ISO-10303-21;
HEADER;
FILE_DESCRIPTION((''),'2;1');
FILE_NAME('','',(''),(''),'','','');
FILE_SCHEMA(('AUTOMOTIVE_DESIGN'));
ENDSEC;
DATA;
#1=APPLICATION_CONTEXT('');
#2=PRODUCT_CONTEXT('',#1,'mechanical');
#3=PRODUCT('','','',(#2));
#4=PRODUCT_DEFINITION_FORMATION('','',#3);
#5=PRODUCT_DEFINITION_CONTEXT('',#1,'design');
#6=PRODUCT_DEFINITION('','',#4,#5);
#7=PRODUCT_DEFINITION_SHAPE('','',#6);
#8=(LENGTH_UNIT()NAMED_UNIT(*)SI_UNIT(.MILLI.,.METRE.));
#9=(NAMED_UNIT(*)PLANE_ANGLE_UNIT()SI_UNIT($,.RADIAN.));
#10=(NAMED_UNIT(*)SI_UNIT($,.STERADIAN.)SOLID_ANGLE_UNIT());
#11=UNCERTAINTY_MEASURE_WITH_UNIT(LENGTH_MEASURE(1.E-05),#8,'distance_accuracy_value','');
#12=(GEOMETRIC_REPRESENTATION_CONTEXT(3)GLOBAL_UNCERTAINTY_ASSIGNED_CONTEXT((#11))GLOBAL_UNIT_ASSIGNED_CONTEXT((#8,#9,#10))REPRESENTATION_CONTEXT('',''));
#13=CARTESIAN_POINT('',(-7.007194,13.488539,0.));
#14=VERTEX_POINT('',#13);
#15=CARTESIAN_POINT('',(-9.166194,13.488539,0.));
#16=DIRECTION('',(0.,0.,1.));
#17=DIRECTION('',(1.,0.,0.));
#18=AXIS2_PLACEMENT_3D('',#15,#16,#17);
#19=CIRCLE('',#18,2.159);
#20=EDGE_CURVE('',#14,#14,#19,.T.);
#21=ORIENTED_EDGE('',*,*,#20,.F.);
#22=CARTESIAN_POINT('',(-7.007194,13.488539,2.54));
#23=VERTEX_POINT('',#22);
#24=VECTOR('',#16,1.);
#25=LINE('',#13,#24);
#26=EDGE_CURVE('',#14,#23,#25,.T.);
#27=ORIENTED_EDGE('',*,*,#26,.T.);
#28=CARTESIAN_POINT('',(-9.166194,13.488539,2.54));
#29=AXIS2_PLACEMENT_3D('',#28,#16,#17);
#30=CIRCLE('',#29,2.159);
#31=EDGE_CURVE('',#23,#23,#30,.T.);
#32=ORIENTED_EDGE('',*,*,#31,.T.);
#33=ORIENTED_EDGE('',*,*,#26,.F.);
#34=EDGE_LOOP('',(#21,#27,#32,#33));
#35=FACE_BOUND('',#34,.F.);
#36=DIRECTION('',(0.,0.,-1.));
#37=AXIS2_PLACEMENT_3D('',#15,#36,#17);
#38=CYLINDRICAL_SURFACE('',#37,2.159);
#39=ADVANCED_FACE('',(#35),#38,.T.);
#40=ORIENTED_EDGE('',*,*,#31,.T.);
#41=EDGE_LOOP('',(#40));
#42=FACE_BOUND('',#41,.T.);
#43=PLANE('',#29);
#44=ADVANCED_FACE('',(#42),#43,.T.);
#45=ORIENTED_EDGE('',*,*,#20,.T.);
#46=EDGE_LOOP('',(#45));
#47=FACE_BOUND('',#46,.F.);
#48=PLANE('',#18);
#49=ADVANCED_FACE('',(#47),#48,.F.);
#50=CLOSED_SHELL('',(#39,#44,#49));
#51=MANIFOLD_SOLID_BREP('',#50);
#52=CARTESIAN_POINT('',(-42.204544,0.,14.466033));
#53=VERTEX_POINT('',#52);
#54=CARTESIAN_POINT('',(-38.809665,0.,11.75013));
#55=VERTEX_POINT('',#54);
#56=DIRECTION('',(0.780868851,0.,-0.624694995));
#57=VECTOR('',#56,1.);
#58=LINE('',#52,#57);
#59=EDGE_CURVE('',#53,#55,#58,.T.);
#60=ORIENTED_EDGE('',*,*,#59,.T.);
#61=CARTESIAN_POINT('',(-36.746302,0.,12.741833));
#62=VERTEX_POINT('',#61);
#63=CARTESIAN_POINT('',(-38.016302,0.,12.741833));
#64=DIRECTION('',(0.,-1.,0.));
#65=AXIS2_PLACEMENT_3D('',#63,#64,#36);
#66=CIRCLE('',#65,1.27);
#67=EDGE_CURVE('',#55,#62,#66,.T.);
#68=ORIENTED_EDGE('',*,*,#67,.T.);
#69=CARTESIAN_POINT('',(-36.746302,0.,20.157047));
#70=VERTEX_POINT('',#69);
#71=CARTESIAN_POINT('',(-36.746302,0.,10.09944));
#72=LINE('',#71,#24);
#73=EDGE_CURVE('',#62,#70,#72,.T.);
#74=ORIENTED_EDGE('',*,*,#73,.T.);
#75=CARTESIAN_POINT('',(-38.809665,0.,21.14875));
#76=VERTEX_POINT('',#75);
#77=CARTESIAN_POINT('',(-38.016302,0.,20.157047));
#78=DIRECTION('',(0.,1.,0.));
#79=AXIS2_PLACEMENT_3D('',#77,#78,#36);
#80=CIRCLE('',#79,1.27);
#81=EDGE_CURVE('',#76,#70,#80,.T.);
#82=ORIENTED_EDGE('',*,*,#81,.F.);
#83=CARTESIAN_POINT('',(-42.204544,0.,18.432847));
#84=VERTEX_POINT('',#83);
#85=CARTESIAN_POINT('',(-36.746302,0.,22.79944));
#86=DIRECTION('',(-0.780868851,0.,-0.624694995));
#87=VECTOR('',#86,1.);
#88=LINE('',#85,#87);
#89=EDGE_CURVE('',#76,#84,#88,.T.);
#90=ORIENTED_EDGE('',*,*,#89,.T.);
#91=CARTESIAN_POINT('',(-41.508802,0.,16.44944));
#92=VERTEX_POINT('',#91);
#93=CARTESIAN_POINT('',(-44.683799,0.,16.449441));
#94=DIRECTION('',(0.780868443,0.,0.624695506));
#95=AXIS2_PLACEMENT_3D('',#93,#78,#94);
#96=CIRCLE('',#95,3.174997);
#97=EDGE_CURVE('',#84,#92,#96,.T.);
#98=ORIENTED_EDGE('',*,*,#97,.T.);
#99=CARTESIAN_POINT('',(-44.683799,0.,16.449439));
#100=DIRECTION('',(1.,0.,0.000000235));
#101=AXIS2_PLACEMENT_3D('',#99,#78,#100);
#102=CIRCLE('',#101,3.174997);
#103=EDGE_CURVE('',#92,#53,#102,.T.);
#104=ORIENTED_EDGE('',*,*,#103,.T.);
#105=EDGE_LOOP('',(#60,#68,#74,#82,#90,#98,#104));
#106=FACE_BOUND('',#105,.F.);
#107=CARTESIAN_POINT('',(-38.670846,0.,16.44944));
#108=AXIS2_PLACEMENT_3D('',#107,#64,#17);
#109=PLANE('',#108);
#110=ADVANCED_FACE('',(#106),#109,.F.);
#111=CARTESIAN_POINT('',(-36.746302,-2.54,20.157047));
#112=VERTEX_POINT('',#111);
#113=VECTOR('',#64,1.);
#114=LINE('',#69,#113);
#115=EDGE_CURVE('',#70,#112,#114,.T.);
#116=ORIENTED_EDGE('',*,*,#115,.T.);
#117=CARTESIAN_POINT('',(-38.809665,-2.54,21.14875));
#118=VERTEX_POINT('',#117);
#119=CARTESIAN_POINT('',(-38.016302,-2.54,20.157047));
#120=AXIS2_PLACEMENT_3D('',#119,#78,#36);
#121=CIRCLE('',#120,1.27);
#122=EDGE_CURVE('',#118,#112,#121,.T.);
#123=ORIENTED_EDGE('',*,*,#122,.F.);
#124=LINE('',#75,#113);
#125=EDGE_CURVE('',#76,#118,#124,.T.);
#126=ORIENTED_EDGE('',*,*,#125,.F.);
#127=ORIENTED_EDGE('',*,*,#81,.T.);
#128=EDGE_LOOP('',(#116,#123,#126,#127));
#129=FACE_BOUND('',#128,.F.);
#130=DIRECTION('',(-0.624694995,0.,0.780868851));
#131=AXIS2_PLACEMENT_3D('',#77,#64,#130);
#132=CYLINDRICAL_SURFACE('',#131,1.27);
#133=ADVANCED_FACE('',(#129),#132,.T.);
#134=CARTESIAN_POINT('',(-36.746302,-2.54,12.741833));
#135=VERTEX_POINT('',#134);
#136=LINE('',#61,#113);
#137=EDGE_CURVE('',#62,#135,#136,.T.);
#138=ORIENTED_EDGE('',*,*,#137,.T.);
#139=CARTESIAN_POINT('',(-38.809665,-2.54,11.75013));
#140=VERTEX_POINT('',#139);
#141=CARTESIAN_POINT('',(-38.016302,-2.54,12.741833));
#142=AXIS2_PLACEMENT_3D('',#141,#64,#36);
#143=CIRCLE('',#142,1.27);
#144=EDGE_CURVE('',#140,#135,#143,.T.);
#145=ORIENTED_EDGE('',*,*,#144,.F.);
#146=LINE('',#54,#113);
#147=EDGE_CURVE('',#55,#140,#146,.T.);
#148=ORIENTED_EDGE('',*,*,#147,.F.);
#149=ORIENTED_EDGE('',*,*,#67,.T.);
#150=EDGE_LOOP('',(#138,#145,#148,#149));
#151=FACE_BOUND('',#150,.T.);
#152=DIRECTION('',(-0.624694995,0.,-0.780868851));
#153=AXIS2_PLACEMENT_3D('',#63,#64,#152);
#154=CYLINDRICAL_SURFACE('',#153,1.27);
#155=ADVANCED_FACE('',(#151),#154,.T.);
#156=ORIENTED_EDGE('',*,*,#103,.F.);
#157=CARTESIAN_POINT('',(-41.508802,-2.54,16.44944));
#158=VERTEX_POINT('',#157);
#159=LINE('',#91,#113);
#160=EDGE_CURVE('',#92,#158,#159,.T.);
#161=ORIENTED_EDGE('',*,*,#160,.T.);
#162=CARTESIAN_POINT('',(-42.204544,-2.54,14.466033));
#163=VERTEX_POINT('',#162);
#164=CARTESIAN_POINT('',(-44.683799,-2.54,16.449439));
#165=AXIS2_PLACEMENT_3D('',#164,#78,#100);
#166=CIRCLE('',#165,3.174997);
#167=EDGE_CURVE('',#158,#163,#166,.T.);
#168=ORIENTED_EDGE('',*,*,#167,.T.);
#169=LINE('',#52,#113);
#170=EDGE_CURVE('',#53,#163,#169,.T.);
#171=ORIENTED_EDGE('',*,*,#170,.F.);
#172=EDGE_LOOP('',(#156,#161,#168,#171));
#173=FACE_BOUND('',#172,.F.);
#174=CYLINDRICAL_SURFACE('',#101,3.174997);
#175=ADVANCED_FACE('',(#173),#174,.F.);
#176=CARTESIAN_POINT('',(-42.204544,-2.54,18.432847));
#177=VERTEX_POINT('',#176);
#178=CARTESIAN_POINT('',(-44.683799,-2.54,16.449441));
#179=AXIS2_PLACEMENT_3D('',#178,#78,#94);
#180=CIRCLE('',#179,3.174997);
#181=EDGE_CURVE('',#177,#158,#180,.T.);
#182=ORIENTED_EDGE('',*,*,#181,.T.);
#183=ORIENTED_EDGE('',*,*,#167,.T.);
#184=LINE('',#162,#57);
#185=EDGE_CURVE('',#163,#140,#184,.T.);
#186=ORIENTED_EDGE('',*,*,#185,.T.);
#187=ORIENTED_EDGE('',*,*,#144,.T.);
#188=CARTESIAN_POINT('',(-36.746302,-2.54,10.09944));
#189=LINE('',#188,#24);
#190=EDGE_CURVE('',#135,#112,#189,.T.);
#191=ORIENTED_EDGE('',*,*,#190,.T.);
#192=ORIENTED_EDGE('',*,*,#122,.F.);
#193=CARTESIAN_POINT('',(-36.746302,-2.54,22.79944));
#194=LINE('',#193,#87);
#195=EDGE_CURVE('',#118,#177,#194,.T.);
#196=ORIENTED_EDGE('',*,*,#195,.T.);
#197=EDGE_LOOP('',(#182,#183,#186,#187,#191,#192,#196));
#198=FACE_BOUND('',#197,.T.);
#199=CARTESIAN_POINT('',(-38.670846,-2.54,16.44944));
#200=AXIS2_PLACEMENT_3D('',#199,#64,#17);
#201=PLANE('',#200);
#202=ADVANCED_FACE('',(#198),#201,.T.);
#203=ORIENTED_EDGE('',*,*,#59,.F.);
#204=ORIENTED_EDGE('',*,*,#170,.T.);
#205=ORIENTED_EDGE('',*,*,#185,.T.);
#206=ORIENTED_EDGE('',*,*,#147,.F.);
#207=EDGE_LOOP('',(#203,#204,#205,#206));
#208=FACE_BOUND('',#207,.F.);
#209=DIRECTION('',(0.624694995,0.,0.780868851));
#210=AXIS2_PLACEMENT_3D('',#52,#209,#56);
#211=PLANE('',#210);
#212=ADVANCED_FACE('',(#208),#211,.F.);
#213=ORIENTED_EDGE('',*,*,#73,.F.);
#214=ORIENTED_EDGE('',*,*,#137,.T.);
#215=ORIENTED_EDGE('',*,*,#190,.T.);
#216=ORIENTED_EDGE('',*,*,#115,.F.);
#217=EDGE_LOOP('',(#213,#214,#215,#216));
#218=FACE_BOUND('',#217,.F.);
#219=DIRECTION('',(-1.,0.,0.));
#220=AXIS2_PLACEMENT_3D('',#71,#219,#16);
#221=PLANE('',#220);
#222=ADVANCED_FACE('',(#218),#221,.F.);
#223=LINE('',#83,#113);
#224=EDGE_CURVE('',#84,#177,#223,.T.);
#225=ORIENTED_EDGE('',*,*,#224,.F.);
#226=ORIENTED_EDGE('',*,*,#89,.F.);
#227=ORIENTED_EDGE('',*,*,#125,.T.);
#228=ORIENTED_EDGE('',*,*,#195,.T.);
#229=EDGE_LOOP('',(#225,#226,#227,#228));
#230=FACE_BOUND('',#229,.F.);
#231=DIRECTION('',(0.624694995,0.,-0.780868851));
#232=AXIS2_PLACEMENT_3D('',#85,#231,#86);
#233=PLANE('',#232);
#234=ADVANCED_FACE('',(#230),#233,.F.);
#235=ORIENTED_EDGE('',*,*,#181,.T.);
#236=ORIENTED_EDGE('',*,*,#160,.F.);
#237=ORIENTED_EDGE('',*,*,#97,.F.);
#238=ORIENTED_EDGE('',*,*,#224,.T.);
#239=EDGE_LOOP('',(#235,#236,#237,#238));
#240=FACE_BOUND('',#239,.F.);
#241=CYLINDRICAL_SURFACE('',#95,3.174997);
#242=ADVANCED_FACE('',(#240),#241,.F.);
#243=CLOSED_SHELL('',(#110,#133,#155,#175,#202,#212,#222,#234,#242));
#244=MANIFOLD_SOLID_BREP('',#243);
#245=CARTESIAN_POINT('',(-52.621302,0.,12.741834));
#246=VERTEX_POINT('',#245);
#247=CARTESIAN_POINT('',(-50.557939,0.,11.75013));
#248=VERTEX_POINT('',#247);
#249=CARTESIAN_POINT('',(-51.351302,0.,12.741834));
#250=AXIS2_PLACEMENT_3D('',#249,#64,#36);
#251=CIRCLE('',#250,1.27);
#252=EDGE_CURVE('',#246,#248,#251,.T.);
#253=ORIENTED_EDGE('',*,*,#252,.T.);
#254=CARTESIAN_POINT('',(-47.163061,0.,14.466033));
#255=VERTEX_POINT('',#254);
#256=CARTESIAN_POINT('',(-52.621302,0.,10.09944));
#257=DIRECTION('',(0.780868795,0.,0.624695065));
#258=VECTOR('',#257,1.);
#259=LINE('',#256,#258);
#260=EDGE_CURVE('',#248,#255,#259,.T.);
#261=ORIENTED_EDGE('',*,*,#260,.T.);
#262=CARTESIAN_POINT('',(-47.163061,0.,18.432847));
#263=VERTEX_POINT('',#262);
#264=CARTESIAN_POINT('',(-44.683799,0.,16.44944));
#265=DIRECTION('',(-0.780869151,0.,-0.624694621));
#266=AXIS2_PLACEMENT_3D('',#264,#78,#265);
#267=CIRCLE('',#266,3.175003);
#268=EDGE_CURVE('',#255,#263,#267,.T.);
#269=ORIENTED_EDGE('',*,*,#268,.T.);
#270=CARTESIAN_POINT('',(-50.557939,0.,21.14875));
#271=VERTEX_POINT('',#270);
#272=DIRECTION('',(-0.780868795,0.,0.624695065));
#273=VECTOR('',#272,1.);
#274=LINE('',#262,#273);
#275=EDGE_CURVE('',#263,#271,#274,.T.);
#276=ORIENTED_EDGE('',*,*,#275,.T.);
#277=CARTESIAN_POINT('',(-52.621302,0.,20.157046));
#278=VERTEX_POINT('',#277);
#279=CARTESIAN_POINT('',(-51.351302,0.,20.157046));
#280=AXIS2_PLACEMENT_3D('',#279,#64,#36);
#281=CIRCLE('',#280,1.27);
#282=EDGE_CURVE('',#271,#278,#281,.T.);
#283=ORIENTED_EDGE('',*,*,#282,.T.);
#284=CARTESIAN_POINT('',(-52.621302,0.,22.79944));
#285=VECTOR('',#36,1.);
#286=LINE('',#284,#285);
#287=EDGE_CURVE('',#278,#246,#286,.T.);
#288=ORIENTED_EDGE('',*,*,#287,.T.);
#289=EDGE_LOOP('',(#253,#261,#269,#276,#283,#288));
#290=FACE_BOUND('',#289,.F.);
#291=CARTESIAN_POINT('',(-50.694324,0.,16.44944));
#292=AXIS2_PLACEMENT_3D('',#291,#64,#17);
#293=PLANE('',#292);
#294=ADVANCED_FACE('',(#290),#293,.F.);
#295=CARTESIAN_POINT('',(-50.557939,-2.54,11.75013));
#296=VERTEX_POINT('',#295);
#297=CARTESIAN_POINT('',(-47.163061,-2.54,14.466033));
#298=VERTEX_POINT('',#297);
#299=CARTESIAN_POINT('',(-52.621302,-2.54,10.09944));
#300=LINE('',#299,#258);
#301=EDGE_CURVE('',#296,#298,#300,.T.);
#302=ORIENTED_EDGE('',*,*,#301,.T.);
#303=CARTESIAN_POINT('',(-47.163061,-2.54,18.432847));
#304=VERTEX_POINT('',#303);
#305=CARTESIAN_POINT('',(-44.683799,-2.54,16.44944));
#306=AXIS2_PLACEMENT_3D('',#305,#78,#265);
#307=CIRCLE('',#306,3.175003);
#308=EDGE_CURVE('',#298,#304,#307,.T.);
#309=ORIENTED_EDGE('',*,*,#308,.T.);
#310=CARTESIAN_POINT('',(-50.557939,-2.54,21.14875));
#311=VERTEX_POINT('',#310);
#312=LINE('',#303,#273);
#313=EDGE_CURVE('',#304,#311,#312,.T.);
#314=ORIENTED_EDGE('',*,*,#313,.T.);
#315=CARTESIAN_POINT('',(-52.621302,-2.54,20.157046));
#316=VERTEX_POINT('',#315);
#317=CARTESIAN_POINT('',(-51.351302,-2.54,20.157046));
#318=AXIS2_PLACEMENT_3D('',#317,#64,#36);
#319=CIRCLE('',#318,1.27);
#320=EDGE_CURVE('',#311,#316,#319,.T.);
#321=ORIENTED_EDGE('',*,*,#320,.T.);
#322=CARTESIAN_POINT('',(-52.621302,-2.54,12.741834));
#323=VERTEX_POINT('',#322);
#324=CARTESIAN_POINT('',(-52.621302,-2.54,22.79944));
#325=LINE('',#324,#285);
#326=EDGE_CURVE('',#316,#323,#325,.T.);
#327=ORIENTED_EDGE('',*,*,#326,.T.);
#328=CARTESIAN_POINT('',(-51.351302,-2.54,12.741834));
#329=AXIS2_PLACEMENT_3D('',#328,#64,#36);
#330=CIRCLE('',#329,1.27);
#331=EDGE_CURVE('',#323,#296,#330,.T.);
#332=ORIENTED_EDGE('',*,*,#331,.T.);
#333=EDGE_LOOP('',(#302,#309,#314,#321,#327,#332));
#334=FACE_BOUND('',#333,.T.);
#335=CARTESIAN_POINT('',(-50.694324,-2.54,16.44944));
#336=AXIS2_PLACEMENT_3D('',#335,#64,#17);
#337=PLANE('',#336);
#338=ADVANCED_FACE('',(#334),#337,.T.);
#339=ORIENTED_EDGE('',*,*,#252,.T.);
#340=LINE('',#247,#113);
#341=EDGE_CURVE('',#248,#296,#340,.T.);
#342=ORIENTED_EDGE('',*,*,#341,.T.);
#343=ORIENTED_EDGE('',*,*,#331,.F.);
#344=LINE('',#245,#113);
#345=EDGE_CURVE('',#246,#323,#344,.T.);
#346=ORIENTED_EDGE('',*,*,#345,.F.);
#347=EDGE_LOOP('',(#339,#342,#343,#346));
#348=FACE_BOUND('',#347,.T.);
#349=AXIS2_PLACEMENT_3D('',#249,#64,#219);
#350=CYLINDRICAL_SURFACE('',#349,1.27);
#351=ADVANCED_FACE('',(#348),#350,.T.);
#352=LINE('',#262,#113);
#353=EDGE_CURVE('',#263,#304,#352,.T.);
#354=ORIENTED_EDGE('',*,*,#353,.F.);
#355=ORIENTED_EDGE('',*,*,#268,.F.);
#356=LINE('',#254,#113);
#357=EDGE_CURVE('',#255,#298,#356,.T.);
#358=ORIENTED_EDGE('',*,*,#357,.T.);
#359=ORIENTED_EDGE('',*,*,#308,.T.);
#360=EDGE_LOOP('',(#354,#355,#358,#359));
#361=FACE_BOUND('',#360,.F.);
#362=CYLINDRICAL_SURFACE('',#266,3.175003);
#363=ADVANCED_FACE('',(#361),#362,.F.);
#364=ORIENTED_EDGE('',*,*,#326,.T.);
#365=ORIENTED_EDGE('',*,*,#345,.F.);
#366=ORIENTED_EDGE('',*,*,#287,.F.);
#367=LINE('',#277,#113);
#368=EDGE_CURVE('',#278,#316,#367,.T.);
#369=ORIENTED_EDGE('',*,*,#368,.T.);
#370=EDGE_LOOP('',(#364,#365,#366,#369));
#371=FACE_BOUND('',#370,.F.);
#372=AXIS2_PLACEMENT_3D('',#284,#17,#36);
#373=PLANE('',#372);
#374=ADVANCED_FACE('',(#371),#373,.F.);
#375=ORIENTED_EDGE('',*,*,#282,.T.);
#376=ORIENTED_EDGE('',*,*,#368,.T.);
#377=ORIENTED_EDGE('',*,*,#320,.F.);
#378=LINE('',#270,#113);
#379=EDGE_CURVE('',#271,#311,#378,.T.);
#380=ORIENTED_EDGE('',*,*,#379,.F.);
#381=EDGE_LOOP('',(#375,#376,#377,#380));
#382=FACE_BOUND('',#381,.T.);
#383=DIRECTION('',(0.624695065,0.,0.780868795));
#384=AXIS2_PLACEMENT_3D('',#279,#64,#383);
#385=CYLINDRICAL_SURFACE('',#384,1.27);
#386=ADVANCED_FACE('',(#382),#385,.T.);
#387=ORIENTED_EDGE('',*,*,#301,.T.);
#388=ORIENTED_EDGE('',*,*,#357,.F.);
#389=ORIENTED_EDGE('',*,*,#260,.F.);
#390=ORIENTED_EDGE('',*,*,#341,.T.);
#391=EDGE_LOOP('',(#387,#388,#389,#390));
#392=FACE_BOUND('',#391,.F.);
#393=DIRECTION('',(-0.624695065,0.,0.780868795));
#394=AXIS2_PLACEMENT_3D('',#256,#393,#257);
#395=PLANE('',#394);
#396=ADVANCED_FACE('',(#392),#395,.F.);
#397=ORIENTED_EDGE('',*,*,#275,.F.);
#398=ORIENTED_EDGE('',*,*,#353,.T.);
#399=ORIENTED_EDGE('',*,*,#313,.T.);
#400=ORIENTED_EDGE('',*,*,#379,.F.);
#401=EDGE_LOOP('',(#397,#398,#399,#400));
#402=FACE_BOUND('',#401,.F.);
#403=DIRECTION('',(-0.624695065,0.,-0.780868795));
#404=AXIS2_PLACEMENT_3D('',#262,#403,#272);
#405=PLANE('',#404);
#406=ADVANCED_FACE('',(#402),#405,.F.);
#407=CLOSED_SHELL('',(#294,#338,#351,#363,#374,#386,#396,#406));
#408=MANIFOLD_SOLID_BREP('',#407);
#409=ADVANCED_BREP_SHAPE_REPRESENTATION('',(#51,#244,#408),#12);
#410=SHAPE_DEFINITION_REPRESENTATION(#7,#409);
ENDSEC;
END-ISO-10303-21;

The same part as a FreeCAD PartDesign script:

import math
import FreeCAD as App
import Part
import Sketcher
from FreeCAD import Vector
Q = App.Units.Quantity


def edges_at(feature, points):
    """Names of the edges that pass closest to the given points."""
    edges = feature.Shape.Edges
    near = lambda p: min(range(len(edges)), key=lambda i: edges[i].distToShape(Part.Vertex(*p))[0])
    return sorted({f"Edge{near(p) + 1}" for p in points})

doc = App.newDocument("Part")
body = doc.addObject("PartDesign::Body", "Body")
body.AllowCompound = True

# Sketch on XZ plane
sketch1 = body.newObject("Sketcher::SketchObject", "Sketch")
sketch1.AttachmentSupport = (doc.getObject("XZ_Plane"), [""])
sketch1.MapMode = "FlatFace"
sketch1.addGeometry([
    Part.LineSegment(Vector(-36.7, 22.8, 0), Vector(-42.2, 18.4, 0)),  # 0
    Part.ArcOfCircle(Part.Circle(Vector(-44.7, 16.4, 0), Vector(0, 0, 1), 3.2), math.radians(0), math.radians(39)),  # 1
    Part.ArcOfCircle(Part.Circle(Vector(-44.7, 16.4, 0), Vector(0, 0, 1), 3.2), math.radians(-39), math.radians(0)),  # 2
    Part.LineSegment(Vector(-42.2, 14.5, 0), Vector(-36.7, 10.1, 0)),  # 3
    Part.LineSegment(Vector(-36.7, 10.1, 0), Vector(-36.7, 22.8, 0)),  # 4
    Part.LineSegment(Vector(-47.2, 18.4, 0), Vector(-52.6, 22.8, 0)),  # 5
    Part.LineSegment(Vector(-52.6, 22.8, 0), Vector(-52.6, 10.1, 0)),  # 6
    Part.LineSegment(Vector(-52.6, 10.1, 0), Vector(-47.2, 14.5, 0)),  # 7
    Part.ArcOfCircle(Part.Circle(Vector(-44.7, 16.4, 0), Vector(0, 0, 1), 3.2), math.radians(141), math.radians(219)),  # 8
], False)
sketch1.addConstraint([
    Sketcher.Constraint("Coincident", 0, 2, 1, 2),
    Sketcher.Constraint("Tangent", 1, 1, 2, 2),
    Sketcher.Constraint("Coincident", 2, 1, 3, 1),
    Sketcher.Constraint("Coincident", 3, 2, 4, 1),
    Sketcher.Constraint("Coincident", 4, 2, 0, 1),
    Sketcher.Constraint("Coincident", 5, 2, 6, 1),
    Sketcher.Constraint("Coincident", 6, 2, 7, 1),
    Sketcher.Constraint("Coincident", 7, 2, 8, 2),
    Sketcher.Constraint("Coincident", 8, 1, 5, 1),
    Sketcher.Constraint("Vertical", 4),
    Sketcher.Constraint("Vertical", 6),
    Sketcher.Constraint("Coincident", 8, 3, 1, 3),
    Sketcher.Constraint("Equal", 1, 2),
    Sketcher.Constraint("Parallel", 3, 5),
    Sketcher.Constraint("Parallel", 0, 7),
    Sketcher.Constraint("Horizontal", 8, 3, 1, 1),
    Sketcher.Constraint("Horizontal", 4, 2, 5, 2),
    Sketcher.Constraint("Horizontal", 3, 2, 6, 2),
    Sketcher.Constraint("Horizontal", 2, 1, 7, 2),
    Sketcher.Constraint("Horizontal", 0, 2, 8, 1),
    Sketcher.Constraint("Vertical", 0, 2, 2, 1),
    Sketcher.Constraint("DistanceY", 4, 1, 4, 2, Q("0.5 in")),
    Sketcher.Constraint("Radius", 1, Q("0.1249999 in")),
    Sketcher.Constraint("Radius", 8, Q("0.1250001 in")),
    Sketcher.Constraint("DistanceX", 1, 1, 3, 2, Q("0.1875 in")),
    Sketcher.Constraint("DistanceX", 1, 3, -1, 1, Q("44.683799 mm")),
    Sketcher.Constraint("DistanceY", -1, 1, 1, 3, Q("16.449441 mm")),
    Sketcher.Constraint("DistanceX", 7, 2, -1, 1, Q("47.163061 mm")),
])
pad1 = body.newObject("PartDesign::Pad", "Pad")
pad1.Profile = sketch1
pad1.Length = Q("0.1 in")
doc.recompute()

fillet = body.newObject("PartDesign::Fillet", "Fillet")
fillet.Base = (pad1, edges_at(pad1, [
    (-52.621, -1.27, 10.099),
    (-36.746, -1.27, 10.099),
    (-36.746, -1.27, 22.799),
    (-52.621, -1.27, 22.799),
]))
fillet.Radius = Q("0.05 in")
body2 = doc.addObject("PartDesign::Body", "Body001")

# Sketch on XY plane
sketch2 = body2.newObject("Sketcher::SketchObject", "Sketch001")
sketch2.AttachmentSupport = (doc.getObject("XY_Plane001"), [""])
sketch2.MapMode = "FlatFace"
sketch2.addGeometry(Part.Circle(Vector(-9.2, 13.5, 0), Vector(0, 0, 1), 2.2), False)
sketch2.addConstraint([
    Sketcher.Constraint("Diameter", 0, Q("0.17 in")),
    Sketcher.Constraint("DistanceY", -1, 1, 0, 3, Q("13.488539 mm")),
    Sketcher.Constraint("DistanceX", 0, 3, -1, 1, Q("9.166194 mm")),
])
pad2 = body2.newObject("PartDesign::Pad", "Pad001")
pad2.Profile = sketch2
pad2.Length = Q("0.1 in")

doc.recompute()
